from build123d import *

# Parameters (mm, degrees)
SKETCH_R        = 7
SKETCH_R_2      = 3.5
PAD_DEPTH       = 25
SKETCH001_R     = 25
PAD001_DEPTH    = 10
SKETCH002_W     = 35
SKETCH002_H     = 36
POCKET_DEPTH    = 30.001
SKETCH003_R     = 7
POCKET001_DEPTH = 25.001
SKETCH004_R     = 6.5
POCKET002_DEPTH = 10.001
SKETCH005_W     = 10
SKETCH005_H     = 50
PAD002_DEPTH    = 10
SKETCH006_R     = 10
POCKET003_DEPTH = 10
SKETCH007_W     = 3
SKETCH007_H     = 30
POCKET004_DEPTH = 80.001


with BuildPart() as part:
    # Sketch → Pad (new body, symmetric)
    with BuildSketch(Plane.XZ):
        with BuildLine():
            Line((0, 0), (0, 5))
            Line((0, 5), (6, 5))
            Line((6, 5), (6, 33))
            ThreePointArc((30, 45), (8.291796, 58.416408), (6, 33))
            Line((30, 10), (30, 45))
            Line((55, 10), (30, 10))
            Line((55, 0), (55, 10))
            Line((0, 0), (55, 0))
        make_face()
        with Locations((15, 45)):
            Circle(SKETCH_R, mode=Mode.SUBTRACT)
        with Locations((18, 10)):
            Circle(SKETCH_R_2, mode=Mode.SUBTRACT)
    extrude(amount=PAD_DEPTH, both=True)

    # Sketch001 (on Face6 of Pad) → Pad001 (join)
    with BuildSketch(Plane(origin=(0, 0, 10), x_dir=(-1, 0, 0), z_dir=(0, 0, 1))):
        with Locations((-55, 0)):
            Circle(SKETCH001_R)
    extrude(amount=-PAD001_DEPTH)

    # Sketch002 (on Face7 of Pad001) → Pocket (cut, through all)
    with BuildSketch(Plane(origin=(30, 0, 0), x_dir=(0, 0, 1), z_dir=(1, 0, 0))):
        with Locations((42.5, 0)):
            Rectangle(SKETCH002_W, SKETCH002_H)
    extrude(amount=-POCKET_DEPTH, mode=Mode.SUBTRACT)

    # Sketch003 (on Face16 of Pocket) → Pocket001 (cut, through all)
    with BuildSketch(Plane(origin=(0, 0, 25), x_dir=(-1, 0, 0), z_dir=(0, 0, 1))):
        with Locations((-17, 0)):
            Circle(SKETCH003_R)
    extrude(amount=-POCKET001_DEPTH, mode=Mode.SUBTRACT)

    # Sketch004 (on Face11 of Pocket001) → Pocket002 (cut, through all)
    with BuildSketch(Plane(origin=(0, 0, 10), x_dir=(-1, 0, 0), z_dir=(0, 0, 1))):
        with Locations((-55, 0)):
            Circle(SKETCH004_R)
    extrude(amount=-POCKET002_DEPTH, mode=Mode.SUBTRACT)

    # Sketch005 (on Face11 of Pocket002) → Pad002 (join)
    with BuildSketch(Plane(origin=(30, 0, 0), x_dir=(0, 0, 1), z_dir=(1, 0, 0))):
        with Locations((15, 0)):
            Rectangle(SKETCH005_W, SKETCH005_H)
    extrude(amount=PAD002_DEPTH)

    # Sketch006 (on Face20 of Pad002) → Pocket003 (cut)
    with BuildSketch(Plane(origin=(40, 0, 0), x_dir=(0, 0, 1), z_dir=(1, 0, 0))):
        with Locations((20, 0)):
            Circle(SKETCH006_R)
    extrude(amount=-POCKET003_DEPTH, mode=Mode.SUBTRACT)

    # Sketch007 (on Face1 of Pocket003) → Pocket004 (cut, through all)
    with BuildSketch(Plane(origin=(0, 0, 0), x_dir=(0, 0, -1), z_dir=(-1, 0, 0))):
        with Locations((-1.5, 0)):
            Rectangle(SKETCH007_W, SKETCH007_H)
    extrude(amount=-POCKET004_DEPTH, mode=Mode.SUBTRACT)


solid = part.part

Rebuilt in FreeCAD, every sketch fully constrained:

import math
import FreeCAD as App
import Part
import Sketcher
from FreeCAD import Vector


def add_polygon(sketch, points):
    """Adds a closed chain of lines whose ends are joined by coincident constraints."""
    first, n = sketch.GeometryCount, len(points)
    for a, b in zip(points, points[1:] + points[:1]):
        sketch.addGeometry(Part.LineSegment(App.Vector(*a, 0), App.Vector(*b, 0)), False)
    for i in range(n):
        sketch.addConstraint(Sketcher.Constraint("Coincident", first + i, 2, first + (i + 1) % n, 1))

doc = App.newDocument("Part")
params = doc.addObject("Spreadsheet::Sheet", "Params")
for row, (alias, value) in enumerate([
    ("sketch1_diameter", "7 mm"),
    ("sketch1_diameter2", "14 mm"),
    ("sketch1_radius", "15 mm"),
    ("sketch1_width", "55 mm"),
    ("sketch1_width2", "25 mm"),
    ("pad1_length", "50 mm"),
    ("sketch2_diameter", "50 mm"),
    ("pad2_length", "10 mm"),
    ("sketch3_width", "36 mm"),
    ("sketch3_height", "35 mm"),
    ("sketch4_diameter", "14 mm"),
    ("sketch5_diameter", "13 mm"),
    ("sketch6_width", "50 mm"),
    ("sketch6_height", "10 mm"),
    ("pad3_length", "10 mm"),
    ("sketch7_diameter", "20 mm"),
    ("pocket4_length", "10 mm"),
    ("sketch8_width", "30 mm"),
    ("sketch8_height", "3 mm"),
], start=1):
    params.set(f"A{row}", alias)
    params.set(f"B{row}", "=" + value)
    params.setAlias(f"B{row}", alias)

body = doc.addObject("PartDesign::Body", "Body")

# Sketch on XZ plane
sketch1 = body.newObject("Sketcher::SketchObject", "Sketch")
sketch1.AttachmentSupport = (doc.getObject("XZ_Plane"), [""])
sketch1.MapMode = "FlatFace"
sketch1.addGeometry([
    Part.LineSegment(Vector(0, 5, 0), Vector(0, 0, 0)),  # 0
    Part.LineSegment(Vector(0, 0, 0), Vector(55, 0, 0)),  # 1
    Part.LineSegment(Vector(55, 0, 0), Vector(55, 10, 0)),  # 2
    Part.LineSegment(Vector(55, 10, 0), Vector(30, 10, 0)),  # 3
    Part.LineSegment(Vector(30, 10, 0), Vector(30, 45, 0)),  # 4
    Part.ArcOfCircle(Part.Circle(Vector(15, 45, 0), Vector(0, 0, 1), 15), math.radians(0), math.radians(233)),  # 5
    Part.LineSegment(Vector(6, 33, 0), Vector(6, 5, 0)),  # 6
    Part.LineSegment(Vector(6, 5, 0), Vector(0, 5, 0)),  # 7
    Part.Circle(Vector(18, 10, 0), Vector(0, 0, 1), 3.5),  # 8
    Part.Circle(Vector(15, 45, 0), Vector(0, 0, 1), 7),  # 9
], False)
sketch1.addConstraint([
    Sketcher.Constraint("Coincident", 0, 2, 1, 1),
    Sketcher.Constraint("Coincident", 1, 2, 2, 1),
    Sketcher.Constraint("Coincident", 2, 2, 3, 1),
    Sketcher.Constraint("Coincident", 3, 2, 4, 1),
    Sketcher.Constraint("Tangent", 4, 2, 5, 1),
    Sketcher.Constraint("Coincident", 5, 2, 6, 1),
    Sketcher.Constraint("Coincident", 6, 2, 7, 1),
    Sketcher.Constraint("Coincident", 7, 2, 0, 1),
    Sketcher.Constraint("Vertical", 0),
    Sketcher.Constraint("Horizontal", 1),
    Sketcher.Constraint("Vertical", 2),
    Sketcher.Constraint("Horizontal", 3),
    Sketcher.Constraint("Vertical", 4),
    Sketcher.Constraint("Vertical", 6),
    Sketcher.Constraint("Horizontal", 7),
    Sketcher.Constraint("Coincident", 0, 2, -1, 1),
    Sketcher.Constraint("Coincident", 9, 3, 5, 3),
    Sketcher.Constraint("Horizontal", 8, 3, 2, 2),
    Sketcher.Constraint("Diameter", 8, 7.0),
    Sketcher.Constraint("Diameter", 9, 14.0),
    Sketcher.Constraint("Radius", 5, 15.0),
    Sketcher.Constraint("DistanceX", 1, 1, 1, 2, 55.0),
    Sketcher.Constraint("DistanceX", 3, 2, 3, 1, 25.0),
    Sketcher.Constraint("DistanceX", 7, 2, 7, 1, 6.0),
    Sketcher.Constraint("DistanceY", 0, 2, 0, 1, 5.0),
    Sketcher.Constraint("DistanceY", 2, 1, 2, 2, 10.0),
    Sketcher.Constraint("DistanceY", 4, 1, 4, 2, 35.0),
    Sketcher.Constraint("DistanceX", -1, 1, 8, 3, 18.0),
])
sketch1.setExpression("Constraints[18]", "Params.sketch1_diameter")
sketch1.setExpression("Constraints[19]", "Params.sketch1_diameter2")
sketch1.setExpression("Constraints[20]", "Params.sketch1_radius")
sketch1.setExpression("Constraints[21]", "Params.sketch1_width")
sketch1.setExpression("Constraints[22]", "Params.sketch1_width2")
pad1 = body.newObject("PartDesign::Pad", "Pad")
pad1.Profile = sketch1
pad1.setExpression("Length", "Params.pad1_length")
pad1.Midplane = True

# Sketch on XY plane
sketch2 = body.newObject("Sketcher::SketchObject", "Sketch001")
sketch2.AttachmentSupport = (doc.getObject("XY_Plane"), [""])
sketch2.MapMode = "FlatFace"
sketch2.AttachmentOffset = App.Placement(Vector(0, 0, 10), App.Rotation())
sketch2.addGeometry(Part.Circle(Vector(55, 0, 0), Vector(0, 0, 1), 25), False)
sketch2.addConstraint([
    Sketcher.Constraint("PointOnObject", 0, 3, -1),
    Sketcher.Constraint("Diameter", 0, 50.0),
    Sketcher.Constraint("DistanceX", -1, 1, 0, 3, 55.0),
])
sketch2.setExpression("Constraints[1]", "Params.sketch2_diameter")
pad2 = body.newObject("PartDesign::Pad", "Pad001")
pad2.Profile = sketch2
pad2.setExpression("Length", "Params.pad2_length")
pad2.Reversed = True

# Sketch on YZ plane
sketch3 = body.newObject("Sketcher::SketchObject", "Sketch002")
sketch3.AttachmentSupport = (doc.getObject("YZ_Plane"), [""])
sketch3.MapMode = "FlatFace"
sketch3.AttachmentOffset = App.Placement(Vector(0, 0, 30), App.Rotation())
add_polygon(sketch3, [(-18, 25), (18, 25), (18, 60), (-18, 60)])  # lines 0-3
sketch3.addConstraint([
    Sketcher.Constraint("Horizontal", 0),
    Sketcher.Constraint("Vertical", 1),
    Sketcher.Constraint("Horizontal", 2),
    Sketcher.Constraint("Vertical", 3),
    Sketcher.Constraint("DistanceX", 0, 1, 0, 2, 36.0),
    Sketcher.Constraint("DistanceY", 1, 1, 1, 2, 35.0),
    Sketcher.Constraint("DistanceX", -1, 1, 0, 2, 18.0),
    Sketcher.Constraint("DistanceY", -1, 1, 0, 2, 25.0),
])
sketch3.setExpression("Constraints[8]", "Params.sketch3_width")
sketch3.setExpression("Constraints[9]", "Params.sketch3_height")
pocket1 = body.newObject("PartDesign::Pocket", "Pocket")
pocket1.Profile = sketch3
pocket1.Type = "ThroughAll"

# Sketch on XY plane
sketch4 = body.newObject("Sketcher::SketchObject", "Sketch003")
sketch4.AttachmentSupport = (doc.getObject("XY_Plane"), [""])
sketch4.MapMode = "FlatFace"
sketch4.AttachmentOffset = App.Placement(Vector(0, 0, 25), App.Rotation())
sketch4.addGeometry(Part.Circle(Vector(17, 0, 0), Vector(0, 0, 1), 7), False)
sketch4.addConstraint([
    Sketcher.Constraint("PointOnObject", 0, 3, -1),
    Sketcher.Constraint("Diameter", 0, 14.0),
    Sketcher.Constraint("DistanceX", -1, 1, 0, 3, 17.0),
])
sketch4.setExpression("Constraints[1]", "Params.sketch4_diameter")
pocket2 = body.newObject("PartDesign::Pocket", "Pocket001")
pocket2.Profile = sketch4
pocket2.Type = "ThroughAll"

# Sketch on XY plane
sketch5 = body.newObject("Sketcher::SketchObject", "Sketch004")
sketch5.AttachmentSupport = (doc.getObject("XY_Plane"), [""])
sketch5.MapMode = "FlatFace"
sketch5.AttachmentOffset = App.Placement(Vector(0, 0, 10), App.Rotation())
sketch5.addGeometry(Part.Circle(Vector(55, 0, 0), Vector(0, 0, 1), 6), False)
sketch5.addConstraint([
    Sketcher.Constraint("PointOnObject", 0, 3, -1),
    Sketcher.Constraint("Diameter", 0, 13.0),
    Sketcher.Constraint("DistanceX", -1, 1, 0, 3, 55.0),
])
sketch5.setExpression("Constraints[1]", "Params.sketch5_diameter")
pocket3 = body.newObject("PartDesign::Pocket", "Pocket002")
pocket3.Profile = sketch5
pocket3.Type = "ThroughAll"

# Sketch on YZ plane
sketch6 = body.newObject("Sketcher::SketchObject", "Sketch005")
sketch6.AttachmentSupport = (doc.getObject("YZ_Plane"), [""])
sketch6.MapMode = "FlatFace"
sketch6.AttachmentOffset = App.Placement(Vector(0, 0, 30), App.Rotation())
add_polygon(sketch6, [(-25, 10), (25, 10), (25, 20), (-25, 20)])  # lines 0-3
sketch6.addConstraint([
    Sketcher.Constraint("Horizontal", 0),
    Sketcher.Constraint("Vertical", 1),
    Sketcher.Constraint("Horizontal", 2),
    Sketcher.Constraint("Vertical", 3),
    Sketcher.Constraint("DistanceX", 0, 1, 0, 2, 50.0),
    Sketcher.Constraint("DistanceY", 1, 1, 1, 2, 10.0),
    Sketcher.Constraint("DistanceX", -1, 1, 0, 2, 25.0),
    Sketcher.Constraint("DistanceY", -1, 1, 0, 2, 10.0),
])
sketch6.setExpression("Constraints[8]", "Params.sketch6_width")
sketch6.setExpression("Constraints[9]", "Params.sketch6_height")
pad3 = body.newObject("PartDesign::Pad", "Pad002")
pad3.Profile = sketch6
pad3.setExpression("Length", "Params.pad3_length")

# Sketch on YZ plane
sketch7 = body.newObject("Sketcher::SketchObject", "Sketch006")
sketch7.AttachmentSupport = (doc.getObject("YZ_Plane"), [""])
sketch7.MapMode = "FlatFace"
sketch7.AttachmentOffset = App.Placement(Vector(0, 0, 40), App.Rotation())
sketch7.addGeometry(Part.Circle(Vector(0, 20, 0), Vector(0, 0, 1), 10), False)
sketch7.addConstraint([
    Sketcher.Constraint("PointOnObject", 0, 3, -2),
    Sketcher.Constraint("Diameter", 0, 20.0),
    Sketcher.Constraint("DistanceY", -1, 1, 0, 3, 20.0),
])
sketch7.setExpression("Constraints[1]", "Params.sketch7_diameter")
pocket4 = body.newObject("PartDesign::Pocket", "Pocket003")
pocket4.Profile = sketch7
pocket4.setExpression("Length", "Params.pocket4_length")

# Sketch on YZ plane
sketch8 = body.newObject("Sketcher::SketchObject", "Sketch007")
sketch8.AttachmentSupport = (doc.getObject("YZ_Plane"), [""])
sketch8.MapMode = "FlatFace"
add_polygon(sketch8, [(-15, 3), (15, 3), (15, 0), (-15, 0)])  # lines 0-3
sketch8.addConstraint([
    Sketcher.Constraint("Horizontal", 0),
    Sketcher.Constraint("Vertical", 1),
    Sketcher.Constraint("Horizontal", 2),
    Sketcher.Constraint("Vertical", 3),
    Sketcher.Constraint("Symmetric", 1, 2, 2, 2, -1, 1),
    Sketcher.Constraint("DistanceX", 0, 1, 0, 2, 30.0),
    Sketcher.Constraint("DistanceY", 1, 2, 1, 1, 3.0),
])
sketch8.setExpression("Constraints[9]", "Params.sketch8_width")
sketch8.setExpression("Constraints[10]", "Params.sketch8_height")
pocket5 = body.newObject("PartDesign::Pocket", "Pocket004")
pocket5.Profile = sketch8
pocket5.Type = "ThroughAll"
pocket5.Reversed = True

doc.recompute()
